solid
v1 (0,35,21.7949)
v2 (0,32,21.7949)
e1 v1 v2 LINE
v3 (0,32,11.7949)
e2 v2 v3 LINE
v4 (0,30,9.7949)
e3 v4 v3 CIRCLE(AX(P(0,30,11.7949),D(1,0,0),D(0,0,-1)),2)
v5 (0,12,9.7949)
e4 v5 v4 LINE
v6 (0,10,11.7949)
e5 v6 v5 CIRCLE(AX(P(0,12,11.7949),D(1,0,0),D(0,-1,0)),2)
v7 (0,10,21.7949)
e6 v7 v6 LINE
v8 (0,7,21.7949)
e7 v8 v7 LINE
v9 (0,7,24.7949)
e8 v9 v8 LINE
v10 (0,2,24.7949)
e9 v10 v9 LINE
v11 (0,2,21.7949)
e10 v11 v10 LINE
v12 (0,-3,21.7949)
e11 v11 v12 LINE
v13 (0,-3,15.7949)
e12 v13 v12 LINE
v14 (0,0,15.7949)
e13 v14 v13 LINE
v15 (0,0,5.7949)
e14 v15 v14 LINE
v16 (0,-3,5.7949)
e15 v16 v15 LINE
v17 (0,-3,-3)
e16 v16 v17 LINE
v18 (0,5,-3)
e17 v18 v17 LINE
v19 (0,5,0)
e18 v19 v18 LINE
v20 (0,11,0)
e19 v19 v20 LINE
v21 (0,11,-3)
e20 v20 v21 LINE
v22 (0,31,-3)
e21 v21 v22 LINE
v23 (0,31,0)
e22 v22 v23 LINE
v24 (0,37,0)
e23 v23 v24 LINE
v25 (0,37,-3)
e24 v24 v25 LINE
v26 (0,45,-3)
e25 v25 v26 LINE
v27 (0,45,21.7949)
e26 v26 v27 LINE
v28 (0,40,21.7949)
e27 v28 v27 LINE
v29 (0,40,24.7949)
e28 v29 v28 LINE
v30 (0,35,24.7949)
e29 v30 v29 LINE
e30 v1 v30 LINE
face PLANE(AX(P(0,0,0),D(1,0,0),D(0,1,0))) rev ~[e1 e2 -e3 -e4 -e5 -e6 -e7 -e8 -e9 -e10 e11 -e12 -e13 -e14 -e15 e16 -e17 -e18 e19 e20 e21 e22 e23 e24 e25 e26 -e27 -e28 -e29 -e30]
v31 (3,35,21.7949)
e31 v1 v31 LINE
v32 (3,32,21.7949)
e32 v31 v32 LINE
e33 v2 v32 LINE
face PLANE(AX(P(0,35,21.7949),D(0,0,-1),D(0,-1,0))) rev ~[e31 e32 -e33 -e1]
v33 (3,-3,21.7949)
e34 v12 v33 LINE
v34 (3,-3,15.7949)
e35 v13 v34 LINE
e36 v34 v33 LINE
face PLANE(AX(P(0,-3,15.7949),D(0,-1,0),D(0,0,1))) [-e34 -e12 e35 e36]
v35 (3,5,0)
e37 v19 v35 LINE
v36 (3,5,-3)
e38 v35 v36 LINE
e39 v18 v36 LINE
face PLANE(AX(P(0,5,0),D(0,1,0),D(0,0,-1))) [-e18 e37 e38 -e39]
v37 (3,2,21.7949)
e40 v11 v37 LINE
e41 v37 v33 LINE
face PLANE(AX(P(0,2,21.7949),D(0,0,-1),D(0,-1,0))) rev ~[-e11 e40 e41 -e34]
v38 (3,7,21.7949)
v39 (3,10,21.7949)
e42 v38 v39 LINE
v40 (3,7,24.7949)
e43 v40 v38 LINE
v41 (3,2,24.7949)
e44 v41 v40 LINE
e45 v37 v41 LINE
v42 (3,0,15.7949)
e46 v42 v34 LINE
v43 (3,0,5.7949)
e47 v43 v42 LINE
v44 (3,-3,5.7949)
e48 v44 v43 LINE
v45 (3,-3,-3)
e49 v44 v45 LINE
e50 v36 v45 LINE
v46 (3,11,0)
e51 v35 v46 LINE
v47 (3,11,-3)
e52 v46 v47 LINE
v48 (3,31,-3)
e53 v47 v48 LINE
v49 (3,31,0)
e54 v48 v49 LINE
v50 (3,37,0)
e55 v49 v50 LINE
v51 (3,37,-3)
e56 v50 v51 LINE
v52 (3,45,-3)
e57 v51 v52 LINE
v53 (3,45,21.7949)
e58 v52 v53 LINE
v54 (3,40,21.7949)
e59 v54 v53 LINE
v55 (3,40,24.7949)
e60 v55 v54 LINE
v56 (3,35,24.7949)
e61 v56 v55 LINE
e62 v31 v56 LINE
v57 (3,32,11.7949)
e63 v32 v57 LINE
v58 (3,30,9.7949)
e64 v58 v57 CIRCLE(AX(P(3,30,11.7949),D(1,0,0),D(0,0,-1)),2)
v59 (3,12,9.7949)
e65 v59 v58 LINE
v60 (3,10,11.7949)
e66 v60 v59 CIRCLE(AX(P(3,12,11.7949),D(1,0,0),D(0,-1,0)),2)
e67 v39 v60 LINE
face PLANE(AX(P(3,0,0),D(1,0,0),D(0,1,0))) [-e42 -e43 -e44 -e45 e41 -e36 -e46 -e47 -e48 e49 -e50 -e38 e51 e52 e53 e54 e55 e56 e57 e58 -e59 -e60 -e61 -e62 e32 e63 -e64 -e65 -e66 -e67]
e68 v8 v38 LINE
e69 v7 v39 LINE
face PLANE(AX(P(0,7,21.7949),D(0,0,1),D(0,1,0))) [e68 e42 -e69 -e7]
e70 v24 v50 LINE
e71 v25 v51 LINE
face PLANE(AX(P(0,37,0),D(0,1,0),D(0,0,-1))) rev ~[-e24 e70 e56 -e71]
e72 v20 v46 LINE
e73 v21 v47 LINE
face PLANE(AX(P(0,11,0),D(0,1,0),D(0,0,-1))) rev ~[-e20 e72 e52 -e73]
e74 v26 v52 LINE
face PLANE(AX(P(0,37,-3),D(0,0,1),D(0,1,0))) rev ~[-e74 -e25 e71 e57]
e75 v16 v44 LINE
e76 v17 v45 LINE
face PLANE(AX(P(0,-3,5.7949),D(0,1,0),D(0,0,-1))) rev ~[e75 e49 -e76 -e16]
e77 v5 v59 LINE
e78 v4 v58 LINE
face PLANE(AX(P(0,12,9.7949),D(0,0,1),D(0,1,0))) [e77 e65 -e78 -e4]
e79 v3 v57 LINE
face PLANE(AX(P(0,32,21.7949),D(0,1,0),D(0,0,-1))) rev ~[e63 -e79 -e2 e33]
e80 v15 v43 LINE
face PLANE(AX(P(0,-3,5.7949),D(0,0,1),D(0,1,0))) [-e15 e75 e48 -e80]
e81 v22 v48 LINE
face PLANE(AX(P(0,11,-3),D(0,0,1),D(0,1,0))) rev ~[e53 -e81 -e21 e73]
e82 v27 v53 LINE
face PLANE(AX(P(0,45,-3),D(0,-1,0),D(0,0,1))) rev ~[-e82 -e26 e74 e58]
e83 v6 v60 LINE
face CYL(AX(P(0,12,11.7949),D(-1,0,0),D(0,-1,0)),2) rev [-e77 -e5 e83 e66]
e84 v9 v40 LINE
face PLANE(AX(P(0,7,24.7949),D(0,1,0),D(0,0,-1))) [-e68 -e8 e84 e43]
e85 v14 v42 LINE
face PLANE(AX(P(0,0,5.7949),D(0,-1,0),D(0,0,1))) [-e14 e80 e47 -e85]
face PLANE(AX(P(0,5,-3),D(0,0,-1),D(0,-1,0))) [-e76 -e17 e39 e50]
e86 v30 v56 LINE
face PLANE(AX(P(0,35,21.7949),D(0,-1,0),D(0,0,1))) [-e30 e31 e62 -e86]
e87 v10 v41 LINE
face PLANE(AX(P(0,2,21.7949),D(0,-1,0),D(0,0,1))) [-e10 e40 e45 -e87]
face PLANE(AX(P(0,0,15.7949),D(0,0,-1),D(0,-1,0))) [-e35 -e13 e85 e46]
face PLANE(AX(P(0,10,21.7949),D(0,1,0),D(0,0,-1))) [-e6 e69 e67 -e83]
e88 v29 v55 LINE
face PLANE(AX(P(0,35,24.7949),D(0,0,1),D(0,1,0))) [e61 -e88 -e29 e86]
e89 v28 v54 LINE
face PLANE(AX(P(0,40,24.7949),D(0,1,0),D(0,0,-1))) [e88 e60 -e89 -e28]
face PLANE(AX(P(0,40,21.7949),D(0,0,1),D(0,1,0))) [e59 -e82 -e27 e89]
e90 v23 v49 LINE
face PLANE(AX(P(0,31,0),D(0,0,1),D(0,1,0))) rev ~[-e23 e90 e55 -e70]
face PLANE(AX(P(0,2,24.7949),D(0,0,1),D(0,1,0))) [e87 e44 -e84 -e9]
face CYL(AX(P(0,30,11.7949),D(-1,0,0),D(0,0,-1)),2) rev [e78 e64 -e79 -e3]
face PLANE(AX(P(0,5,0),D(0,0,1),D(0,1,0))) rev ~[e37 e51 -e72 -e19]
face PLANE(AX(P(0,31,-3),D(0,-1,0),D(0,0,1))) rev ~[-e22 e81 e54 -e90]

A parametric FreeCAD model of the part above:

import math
import FreeCAD as App
import Part
import Sketcher

V = App.Vector

doc = App.newDocument("Part")
body = doc.addObject("PartDesign::Body", "Body")

# Sketch on YZ plane
sketch1 = body.newObject("Sketcher::SketchObject", "Sketch")
sketch1.AttachmentSupport = (doc.getObject("YZ_Plane"), [""])
sketch1.MapMode = "FlatFace"
sketch1.addGeometry(Part.LineSegment(V(-3, 15.8, 0), V(0, 15.8, 0)), False)
sketch1.addGeometry(Part.LineSegment(V(0, 15.8, 0), V(0, 5.8, 0)), False)
sketch1.addGeometry(Part.LineSegment(V(0, 5.8, 0), V(-3, 5.8, 0)), False)
sketch1.addGeometry(Part.LineSegment(V(-3, 5.8, 0), V(-3, -3, 0)), False)
sketch1.addGeometry(Part.LineSegment(V(-3, -3, 0), V(5, -3, 0)), False)
sketch1.addGeometry(Part.LineSegment(V(5, -3, 0), V(5, 0, 0)), False)
sketch1.addGeometry(Part.LineSegment(V(5, 0, 0), V(11, 0, 0)), False)
sketch1.addGeometry(Part.LineSegment(V(11, 0, 0), V(11, -3, 0)), False)
sketch1.addGeometry(Part.LineSegment(V(11, -3, 0), V(31, -3, 0)), False)
sketch1.addGeometry(Part.LineSegment(V(31, -3, 0), V(31, 0, 0)), False)
sketch1.addGeometry(Part.LineSegment(V(31, 0, 0), V(37, 0, 0)), False)
sketch1.addGeometry(Part.LineSegment(V(37, 0, 0), V(37, -3, 0)), False)
sketch1.addGeometry(Part.LineSegment(V(37, -3, 0), V(45, -3, 0)), False)
sketch1.addGeometry(Part.LineSegment(V(45, -3, 0), V(45, 21.8, 0)), False)
sketch1.addGeometry(Part.LineSegment(V(45, 21.8, 0), V(40, 21.8, 0)), False)
sketch1.addGeometry(Part.LineSegment(V(40, 21.8, 0), V(40, 24.8, 0)), False)
sketch1.addGeometry(Part.LineSegment(V(40, 24.8, 0), V(35, 24.8, 0)), False)
sketch1.addGeometry(Part.LineSegment(V(35, 24.8, 0), V(35, 21.8, 0)), False)
sketch1.addGeometry(Part.LineSegment(V(35, 21.8, 0), V(32, 21.8, 0)), False)
sketch1.addGeometry(Part.LineSegment(V(32, 21.8, 0), V(32, 11.8, 0)), False)
sketch1.addGeometry(Part.ArcOfCircle(Part.Circle(V(30, 11.8, 0), V(0, 0, 1), 2), math.radians(-90), math.radians(0)), False)
sketch1.addGeometry(Part.LineSegment(V(30, 9.8, 0), V(12, 9.8, 0)), False)
sketch1.addGeometry(Part.ArcOfCircle(Part.Circle(V(12, 11.8, 0), V(0, 0, 1), 2), math.radians(180), math.radians(270)), False)
sketch1.addGeometry(Part.LineSegment(V(10, 11.8, 0), V(10, 21.8, 0)), False)
sketch1.addGeometry(Part.LineSegment(V(10, 21.8, 0), V(7, 21.8, 0)), False)
sketch1.addGeometry(Part.LineSegment(V(7, 21.8, 0), V(7, 24.8, 0)), False)
sketch1.addGeometry(Part.LineSegment(V(7, 24.8, 0), V(2, 24.8, 0)), False)
sketch1.addGeometry(Part.LineSegment(V(2, 24.8, 0), V(2, 21.8, 0)), False)
sketch1.addGeometry(Part.LineSegment(V(2, 21.8, 0), V(-3, 21.8, 0)), False)
sketch1.addGeometry(Part.LineSegment(V(-3, 21.8, 0), V(-3, 15.8, 0)), False)
sketch1.addConstraint(Sketcher.Constraint("Coincident", 0, 2, 1, 1))
sketch1.addConstraint(Sketcher.Constraint("Coincident", 1, 2, 2, 1))
sketch1.addConstraint(Sketcher.Constraint("Coincident", 2, 2, 3, 1))
sketch1.addConstraint(Sketcher.Constraint("Coincident", 3, 2, 4, 1))
sketch1.addConstraint(Sketcher.Constraint("Coincident", 4, 2, 5, 1))
sketch1.addConstraint(Sketcher.Constraint("Coincident", 5, 2, 6, 1))
sketch1.addConstraint(Sketcher.Constraint("Coincident", 6, 2, 7, 1))
sketch1.addConstraint(Sketcher.Constraint("Coincident", 7, 2, 8, 1))
sketch1.addConstraint(Sketcher.Constraint("Coincident", 8, 2, 9, 1))
sketch1.addConstraint(Sketcher.Constraint("Coincident", 9, 2, 10, 1))
sketch1.addConstraint(Sketcher.Constraint("Coincident", 10, 2, 11, 1))
sketch1.addConstraint(Sketcher.Constraint("Coincident", 11, 2, 12, 1))
sketch1.addConstraint(Sketcher.Constraint("Coincident", 12, 2, 13, 1))
sketch1.addConstraint(Sketcher.Constraint("Coincident", 13, 2, 14, 1))
sketch1.addConstraint(Sketcher.Constraint("Coincident", 14, 2, 15, 1))
sketch1.addConstraint(Sketcher.Constraint("Coincident", 15, 2, 16, 1))
sketch1.addConstraint(Sketcher.Constraint("Coincident", 16, 2, 17, 1))
sketch1.addConstraint(Sketcher.Constraint("Coincident", 17, 2, 18, 1))
sketch1.addConstraint(Sketcher.Constraint("Coincident", 18, 2, 19, 1))
sketch1.addConstraint(Sketcher.Constraint("Tangent", 19, 2, 20, 2))
sketch1.addConstraint(Sketcher.Constraint("Tangent", 20, 1, 21, 1))
sketch1.addConstraint(Sketcher.Constraint("Tangent", 21, 2, 22, 2))
sketch1.addConstraint(Sketcher.Constraint("Tangent", 22, 1, 23, 1))
sketch1.addConstraint(Sketcher.Constraint("Coincident", 23, 2, 24, 1))
sketch1.addConstraint(Sketcher.Constraint("Coincident", 24, 2, 25, 1))
sketch1.addConstraint(Sketcher.Constraint("Coincident", 25, 2, 26, 1))
sketch1.addConstraint(Sketcher.Constraint("Coincident", 26, 2, 27, 1))
sketch1.addConstraint(Sketcher.Constraint("Coincident", 27, 2, 28, 1))
sketch1.addConstraint(Sketcher.Constraint("Coincident", 28, 2, 29, 1))
sketch1.addConstraint(Sketcher.Constraint("Coincident", 29, 2, 0, 1))
sketch1.addConstraint(Sketcher.Constraint("Horizontal", 0))
sketch1.addConstraint(Sketcher.Constraint("Vertical", 1))
sketch1.addConstraint(Sketcher.Constraint("Horizontal", 2))
sketch1.addConstraint(Sketcher.Constraint("Vertical", 3))
sketch1.addConstraint(Sketcher.Constraint("Horizontal", 4))
sketch1.addConstraint(Sketcher.Constraint("Vertical", 5))
sketch1.addConstraint(Sketcher.Constraint("Horizontal", 6))
sketch1.addConstraint(Sketcher.Constraint("Vertical", 7))
sketch1.addConstraint(Sketcher.Constraint("Horizontal", 8))
sketch1.addConstraint(Sketcher.Constraint("Vertical", 9))
sketch1.addConstraint(Sketcher.Constraint("Horizontal", 10))
sketch1.addConstraint(Sketcher.Constraint("Vertical", 11))
sketch1.addConstraint(Sketcher.Constraint("Horizontal", 12))
sketch1.addConstraint(Sketcher.Constraint("Vertical", 13))
sketch1.addConstraint(Sketcher.Constraint("Horizontal", 14))
sketch1.addConstraint(Sketcher.Constraint("Vertical", 15))
sketch1.addConstraint(Sketcher.Constraint("Horizontal", 16))
sketch1.addConstraint(Sketcher.Constraint("Vertical", 17))
sketch1.addConstraint(Sketcher.Constraint("Horizontal", 18))
sketch1.addConstraint(Sketcher.Constraint("Vertical", 19))
sketch1.addConstraint(Sketcher.Constraint("Horizontal", 21))
sketch1.addConstraint(Sketcher.Constraint("Vertical", 23))
sketch1.addConstraint(Sketcher.Constraint("Horizontal", 24))
sketch1.addConstraint(Sketcher.Constraint("Vertical", 25))
sketch1.addConstraint(Sketcher.Constraint("Horizontal", 26))
sketch1.addConstraint(Sketcher.Constraint("Vertical", 27))
sketch1.addConstraint(Sketcher.Constraint("Horizontal", 28))
sketch1.addConstraint(Sketcher.Constraint("Vertical", 29))
sketch1.addConstraint(Sketcher.Constraint("Equal", 20, 22))
sketch1.addConstraint(Sketcher.Constraint("PointOnObject", 0, 2, -2))
sketch1.addConstraint(Sketcher.Constraint("PointOnObject", 5, 2, -1))
sketch1.addConstraint(Sketcher.Constraint("PointOnObject", 9, 2, -1))
sketch1.addConstraint(Sketcher.Constraint("Horizontal", 4, 2, 7, 2))
sketch1.addConstraint(Sketcher.Constraint("Horizontal", 8, 2, 11, 2))
sketch1.addConstraint(Sketcher.Constraint("Horizontal", 14, 2, 17, 2))
sketch1.addConstraint(Sketcher.Constraint("Horizontal", 18, 2, 23, 2))
sketch1.addConstraint(Sketcher.Constraint("Horizontal", 16, 2, 25, 2))
sketch1.addConstraint(Sketcher.Constraint("Horizontal", 24, 2, 27, 2))
sketch1.addConstraint(Sketcher.Constraint("Vertical", 3, 2, 28, 2))
sketch1.addConstraint(Sketcher.Constraint("Equal", 6, 10))
sketch1.addConstraint(Sketcher.Constraint("Equal", 4, 12))
sketch1.addConstraint(Sketcher.Constraint("Equal", 14, 16))
sketch1.addConstraint(Sketcher.Constraint("Equal", 2, 18))
sketch1.addConstraint(Sketcher.Constraint("Equal", 18, 24))
sketch1.addConstraint(Sketcher.Constraint("Equal", 16, 26))
sketch1.addConstraint(Sketcher.Constraint("Equal", 26, 28))
sketch1.addConstraint(Sketcher.Constraint("Equal", 24, 5))
sketch1.addConstraint(Sketcher.Constraint("Equal", 11, 15))
sketch1.addConstraint(Sketcher.Constraint("Equal", 1, 19))
sketch1.addConstraint(Sketcher.Constraint("Equal", 10, 29))
sketch1.addConstraint(Sketcher.Constraint("Radius", 20, 2.0))
sketch1.addConstraint(Sketcher.Constraint("DistanceX", 0, 1, 0, 2, 3.0))
sketch1.addConstraint(Sketcher.Constraint("DistanceX", 4, 1, 4, 2, 8.0))
sketch1.addConstraint(Sketcher.Constraint("DistanceX", 6, 1, 6, 2, 6.0))
sketch1.addConstraint(Sketcher.Constraint("DistanceX", 14, 2, 14, 1, 5.0))
sketch1.addConstraint(Sketcher.Constraint("DistanceY", 1, 2, 1, 1, 10.0))
sketch1.addConstraint(Sketcher.Constraint("DistanceX", 8, 1, 8, 2, 20.0))
sketch1.addConstraint(Sketcher.Constraint("DistanceY", 3, 2, 3, 1, 8.795))
pad1 = body.newObject("PartDesign::Pad", "Pad")
pad1.Profile = sketch1
pad1.Length = 3

doc.recompute()
